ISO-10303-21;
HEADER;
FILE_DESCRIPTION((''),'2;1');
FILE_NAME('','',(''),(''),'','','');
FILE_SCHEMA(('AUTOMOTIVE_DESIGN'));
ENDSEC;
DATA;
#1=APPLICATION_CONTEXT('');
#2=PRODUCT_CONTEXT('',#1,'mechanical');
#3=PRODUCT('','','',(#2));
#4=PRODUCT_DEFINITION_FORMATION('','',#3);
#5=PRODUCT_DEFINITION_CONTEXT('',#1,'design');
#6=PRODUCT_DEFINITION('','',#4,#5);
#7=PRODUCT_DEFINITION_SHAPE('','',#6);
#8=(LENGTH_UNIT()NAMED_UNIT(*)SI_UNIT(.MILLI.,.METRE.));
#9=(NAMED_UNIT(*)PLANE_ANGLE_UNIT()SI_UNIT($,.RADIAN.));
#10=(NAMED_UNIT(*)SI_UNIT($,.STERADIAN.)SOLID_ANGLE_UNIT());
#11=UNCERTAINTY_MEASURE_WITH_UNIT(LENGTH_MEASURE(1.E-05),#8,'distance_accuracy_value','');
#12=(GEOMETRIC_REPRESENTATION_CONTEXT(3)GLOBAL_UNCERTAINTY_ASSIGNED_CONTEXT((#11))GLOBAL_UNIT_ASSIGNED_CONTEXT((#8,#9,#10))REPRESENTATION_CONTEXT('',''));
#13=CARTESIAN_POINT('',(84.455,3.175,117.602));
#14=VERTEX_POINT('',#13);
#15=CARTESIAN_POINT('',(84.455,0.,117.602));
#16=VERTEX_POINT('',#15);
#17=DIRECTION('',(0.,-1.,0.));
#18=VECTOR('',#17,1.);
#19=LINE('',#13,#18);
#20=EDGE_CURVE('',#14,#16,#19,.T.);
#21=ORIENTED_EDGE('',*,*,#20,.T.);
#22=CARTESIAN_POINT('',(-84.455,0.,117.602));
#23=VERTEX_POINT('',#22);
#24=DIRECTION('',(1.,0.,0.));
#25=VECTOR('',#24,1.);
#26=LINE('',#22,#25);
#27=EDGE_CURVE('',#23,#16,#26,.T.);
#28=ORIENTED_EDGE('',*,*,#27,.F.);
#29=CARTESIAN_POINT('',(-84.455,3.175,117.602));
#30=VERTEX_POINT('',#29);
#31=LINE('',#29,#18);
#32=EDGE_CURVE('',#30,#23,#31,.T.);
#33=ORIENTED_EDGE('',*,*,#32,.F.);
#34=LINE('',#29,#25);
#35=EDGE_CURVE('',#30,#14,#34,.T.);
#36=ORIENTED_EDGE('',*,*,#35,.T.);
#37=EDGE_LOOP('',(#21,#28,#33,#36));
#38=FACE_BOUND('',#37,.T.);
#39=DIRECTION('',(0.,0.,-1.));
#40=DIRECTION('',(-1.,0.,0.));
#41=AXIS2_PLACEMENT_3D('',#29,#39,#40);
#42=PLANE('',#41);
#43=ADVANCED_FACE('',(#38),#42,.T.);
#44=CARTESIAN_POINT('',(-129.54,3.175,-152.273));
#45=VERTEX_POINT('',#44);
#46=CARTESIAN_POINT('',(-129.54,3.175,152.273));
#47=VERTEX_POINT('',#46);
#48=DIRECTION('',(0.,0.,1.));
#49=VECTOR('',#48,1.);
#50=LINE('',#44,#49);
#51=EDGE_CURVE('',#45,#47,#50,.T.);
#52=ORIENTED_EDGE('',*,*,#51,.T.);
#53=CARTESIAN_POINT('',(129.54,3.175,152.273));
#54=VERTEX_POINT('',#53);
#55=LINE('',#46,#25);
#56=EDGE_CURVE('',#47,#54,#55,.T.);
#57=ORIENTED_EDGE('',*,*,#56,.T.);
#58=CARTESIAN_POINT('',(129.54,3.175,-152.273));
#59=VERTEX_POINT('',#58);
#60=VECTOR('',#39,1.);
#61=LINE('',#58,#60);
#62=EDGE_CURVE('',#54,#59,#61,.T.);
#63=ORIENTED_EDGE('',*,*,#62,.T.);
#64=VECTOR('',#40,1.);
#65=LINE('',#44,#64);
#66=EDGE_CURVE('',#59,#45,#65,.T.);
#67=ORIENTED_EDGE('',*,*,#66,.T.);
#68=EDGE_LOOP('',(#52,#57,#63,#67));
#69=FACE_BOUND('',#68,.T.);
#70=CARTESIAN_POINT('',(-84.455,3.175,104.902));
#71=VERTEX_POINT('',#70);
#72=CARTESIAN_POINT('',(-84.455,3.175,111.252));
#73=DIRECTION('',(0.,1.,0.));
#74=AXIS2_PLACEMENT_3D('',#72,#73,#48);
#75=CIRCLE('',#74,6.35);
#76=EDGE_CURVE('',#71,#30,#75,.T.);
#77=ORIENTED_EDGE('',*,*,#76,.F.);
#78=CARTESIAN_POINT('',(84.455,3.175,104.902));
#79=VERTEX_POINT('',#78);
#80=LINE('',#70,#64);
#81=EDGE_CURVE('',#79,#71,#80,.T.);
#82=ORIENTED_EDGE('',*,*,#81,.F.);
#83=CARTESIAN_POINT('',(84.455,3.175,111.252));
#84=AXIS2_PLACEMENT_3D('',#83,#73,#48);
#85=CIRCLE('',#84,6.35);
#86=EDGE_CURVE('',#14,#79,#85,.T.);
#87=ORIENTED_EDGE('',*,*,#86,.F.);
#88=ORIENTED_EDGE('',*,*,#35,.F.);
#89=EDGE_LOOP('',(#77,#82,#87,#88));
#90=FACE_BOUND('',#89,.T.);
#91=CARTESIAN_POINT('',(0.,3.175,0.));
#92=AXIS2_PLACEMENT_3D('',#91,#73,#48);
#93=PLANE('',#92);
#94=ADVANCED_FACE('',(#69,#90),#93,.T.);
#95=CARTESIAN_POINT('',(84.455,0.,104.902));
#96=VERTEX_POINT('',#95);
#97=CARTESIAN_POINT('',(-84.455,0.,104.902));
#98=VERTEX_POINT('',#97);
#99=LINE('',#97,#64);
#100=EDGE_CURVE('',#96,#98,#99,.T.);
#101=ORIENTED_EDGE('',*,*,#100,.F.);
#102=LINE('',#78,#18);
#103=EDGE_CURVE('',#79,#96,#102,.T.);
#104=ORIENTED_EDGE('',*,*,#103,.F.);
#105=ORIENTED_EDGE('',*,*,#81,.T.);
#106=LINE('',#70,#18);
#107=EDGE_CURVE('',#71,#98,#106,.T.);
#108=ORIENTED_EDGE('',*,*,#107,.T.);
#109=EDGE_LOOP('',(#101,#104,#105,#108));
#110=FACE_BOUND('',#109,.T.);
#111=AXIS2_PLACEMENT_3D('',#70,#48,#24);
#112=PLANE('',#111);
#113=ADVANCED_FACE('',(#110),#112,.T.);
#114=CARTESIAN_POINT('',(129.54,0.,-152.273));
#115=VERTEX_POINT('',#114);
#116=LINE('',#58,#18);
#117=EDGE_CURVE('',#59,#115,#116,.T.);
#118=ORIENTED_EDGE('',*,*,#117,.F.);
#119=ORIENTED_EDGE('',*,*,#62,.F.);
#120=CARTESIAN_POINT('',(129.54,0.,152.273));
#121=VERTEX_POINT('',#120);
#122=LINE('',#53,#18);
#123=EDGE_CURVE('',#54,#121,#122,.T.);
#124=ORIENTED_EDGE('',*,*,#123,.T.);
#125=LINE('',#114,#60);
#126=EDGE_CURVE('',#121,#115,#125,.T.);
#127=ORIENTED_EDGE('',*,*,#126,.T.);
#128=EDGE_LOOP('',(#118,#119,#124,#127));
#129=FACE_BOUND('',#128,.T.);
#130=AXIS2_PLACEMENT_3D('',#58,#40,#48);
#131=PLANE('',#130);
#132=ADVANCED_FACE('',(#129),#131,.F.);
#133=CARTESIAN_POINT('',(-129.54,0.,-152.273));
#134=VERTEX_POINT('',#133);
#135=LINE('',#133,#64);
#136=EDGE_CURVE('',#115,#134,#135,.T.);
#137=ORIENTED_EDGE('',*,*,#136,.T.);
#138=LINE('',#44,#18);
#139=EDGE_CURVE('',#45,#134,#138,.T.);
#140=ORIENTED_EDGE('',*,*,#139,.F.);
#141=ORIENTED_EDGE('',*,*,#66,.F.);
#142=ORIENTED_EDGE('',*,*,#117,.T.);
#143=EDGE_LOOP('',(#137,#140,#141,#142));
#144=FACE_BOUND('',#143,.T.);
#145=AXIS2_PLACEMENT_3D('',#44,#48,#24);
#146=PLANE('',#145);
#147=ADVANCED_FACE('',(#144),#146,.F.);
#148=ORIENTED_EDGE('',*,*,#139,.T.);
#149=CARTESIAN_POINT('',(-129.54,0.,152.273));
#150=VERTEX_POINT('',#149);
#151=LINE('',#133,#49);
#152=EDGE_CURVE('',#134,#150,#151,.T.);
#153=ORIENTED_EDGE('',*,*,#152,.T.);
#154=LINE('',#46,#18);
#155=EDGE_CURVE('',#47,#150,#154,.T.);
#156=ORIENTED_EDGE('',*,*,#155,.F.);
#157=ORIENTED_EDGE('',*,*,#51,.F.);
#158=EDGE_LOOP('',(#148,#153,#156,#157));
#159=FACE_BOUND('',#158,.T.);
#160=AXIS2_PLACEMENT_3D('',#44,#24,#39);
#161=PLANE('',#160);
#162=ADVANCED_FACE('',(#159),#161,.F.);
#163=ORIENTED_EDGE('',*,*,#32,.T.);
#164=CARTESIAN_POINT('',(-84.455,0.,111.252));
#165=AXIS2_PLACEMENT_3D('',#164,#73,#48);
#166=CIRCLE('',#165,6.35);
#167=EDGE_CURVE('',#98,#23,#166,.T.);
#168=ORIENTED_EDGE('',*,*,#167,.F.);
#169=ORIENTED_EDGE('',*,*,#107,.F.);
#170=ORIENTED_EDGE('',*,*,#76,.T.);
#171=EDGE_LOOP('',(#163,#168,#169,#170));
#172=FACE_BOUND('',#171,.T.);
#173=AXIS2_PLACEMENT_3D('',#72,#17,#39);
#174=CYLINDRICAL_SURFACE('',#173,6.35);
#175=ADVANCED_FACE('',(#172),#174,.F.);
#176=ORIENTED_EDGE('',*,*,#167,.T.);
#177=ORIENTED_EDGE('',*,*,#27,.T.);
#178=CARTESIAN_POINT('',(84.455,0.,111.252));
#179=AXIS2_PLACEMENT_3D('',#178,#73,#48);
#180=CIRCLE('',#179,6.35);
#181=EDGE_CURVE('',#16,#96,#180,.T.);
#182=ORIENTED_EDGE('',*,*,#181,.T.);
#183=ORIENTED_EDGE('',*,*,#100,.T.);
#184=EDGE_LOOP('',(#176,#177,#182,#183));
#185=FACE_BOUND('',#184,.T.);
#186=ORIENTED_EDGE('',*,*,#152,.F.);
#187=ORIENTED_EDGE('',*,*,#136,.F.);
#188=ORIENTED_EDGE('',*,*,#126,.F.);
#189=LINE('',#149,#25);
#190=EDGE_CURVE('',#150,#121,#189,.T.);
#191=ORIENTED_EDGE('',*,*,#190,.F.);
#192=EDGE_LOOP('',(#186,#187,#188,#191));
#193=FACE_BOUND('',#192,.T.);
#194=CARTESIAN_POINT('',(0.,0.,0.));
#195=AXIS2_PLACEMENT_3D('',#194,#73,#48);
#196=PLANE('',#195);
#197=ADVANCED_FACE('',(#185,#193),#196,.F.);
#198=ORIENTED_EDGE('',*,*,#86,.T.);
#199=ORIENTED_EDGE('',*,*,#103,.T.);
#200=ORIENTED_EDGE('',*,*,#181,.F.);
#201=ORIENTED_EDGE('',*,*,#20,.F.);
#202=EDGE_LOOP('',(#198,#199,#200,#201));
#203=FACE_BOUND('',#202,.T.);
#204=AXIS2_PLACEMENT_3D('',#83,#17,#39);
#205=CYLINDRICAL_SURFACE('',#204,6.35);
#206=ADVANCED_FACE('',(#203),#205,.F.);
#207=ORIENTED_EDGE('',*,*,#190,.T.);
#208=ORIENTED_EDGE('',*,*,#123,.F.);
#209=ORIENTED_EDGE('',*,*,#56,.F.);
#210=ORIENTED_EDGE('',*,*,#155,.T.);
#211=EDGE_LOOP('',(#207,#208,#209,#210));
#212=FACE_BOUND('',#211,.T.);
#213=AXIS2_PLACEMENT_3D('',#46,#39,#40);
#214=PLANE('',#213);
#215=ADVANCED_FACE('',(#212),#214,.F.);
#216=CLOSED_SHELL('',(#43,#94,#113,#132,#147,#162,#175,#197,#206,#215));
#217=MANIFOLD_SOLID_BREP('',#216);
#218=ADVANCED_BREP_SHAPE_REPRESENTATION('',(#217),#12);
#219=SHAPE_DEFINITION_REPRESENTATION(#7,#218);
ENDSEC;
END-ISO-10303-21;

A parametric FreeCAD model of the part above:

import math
import FreeCAD as App
import Part
import Sketcher
Q = App.Units.Quantity

doc = App.newDocument("Part")
body = doc.addObject("PartDesign::Body", "Body")

# Sketch on XZ plane
sketch1 = body.newObject("Sketcher::SketchObject", "Sketch")
sketch1.AttachmentSupport = (doc.getObject("XZ_Plane"), [""])
sketch1.MapMode = "FlatFace"
sketch1.addGeometry([
    Part.LineSegment(App.Vector(-130, -152, 0), App.Vector(-130, 152, 0)),  # 0
    Part.LineSegment(App.Vector(-130, 152, 0), App.Vector(130, 152, 0)),  # 1
    Part.LineSegment(App.Vector(130, 152, 0), App.Vector(130, -152, 0)),  # 2
    Part.LineSegment(App.Vector(130, -152, 0), App.Vector(-130, -152, 0)),  # 3
    Part.ArcOfCircle(Part.Circle(App.Vector(-84, 111, 0), App.Vector(0, 0, 1), 6), math.radians(90), math.radians(270)),  # 4
    Part.LineSegment(App.Vector(-84, 105, 0), App.Vector(84, 105, 0)),  # 5
    Part.ArcOfCircle(Part.Circle(App.Vector(84, 111, 0), App.Vector(0, 0, 1), 6), math.radians(-90), math.radians(90)),  # 6
    Part.LineSegment(App.Vector(84, 118, 0), App.Vector(-84, 118, 0)),  # 7
], False)
sketch1.addConstraint([
    Sketcher.Constraint("Coincident", 0, 2, 1, 1),
    Sketcher.Constraint("Coincident", 1, 2, 2, 1),
    Sketcher.Constraint("Coincident", 2, 2, 3, 1),
    Sketcher.Constraint("Coincident", 3, 2, 0, 1),
    Sketcher.Constraint("Tangent", 4, 2, 5, 1),
    Sketcher.Constraint("Tangent", 5, 2, 6, 1),
    Sketcher.Constraint("Tangent", 6, 2, 7, 1),
    Sketcher.Constraint("Tangent", 7, 2, 4, 1),
    Sketcher.Constraint("Vertical", 0),
    Sketcher.Constraint("Horizontal", 1),
    Sketcher.Constraint("Vertical", 2),
    Sketcher.Constraint("Horizontal", 3),
    Sketcher.Constraint("Horizontal", 5),
    Sketcher.Constraint("Horizontal", 7),
    Sketcher.Constraint("Symmetric", 0, 2, 2, 2, -1, 1),
    Sketcher.Constraint("Radius", 4, Q("0.25 in")),
    Sketcher.Constraint("DistanceX", 1, 1, 1, 2, Q("10.2 in")),
    Sketcher.Constraint("DistanceX", 5, 1, 5, 2, Q("6.65 in")),
    Sketcher.Constraint("DistanceY", 0, 1, 0, 2, Q("11.99 in")),
    Sketcher.Constraint("DistanceY", -1, 1, 4, 3, Q("4.38 in")),
    Sketcher.Constraint("DistanceX", 4, 3, -1, 1, Q("3.325 in")),
])
pad1 = body.newObject("PartDesign::Pad", "Pad")
pad1.Profile = sketch1
pad1.Length = Q("0.125 in")
pad1.Reversed = True

doc.recompute()
